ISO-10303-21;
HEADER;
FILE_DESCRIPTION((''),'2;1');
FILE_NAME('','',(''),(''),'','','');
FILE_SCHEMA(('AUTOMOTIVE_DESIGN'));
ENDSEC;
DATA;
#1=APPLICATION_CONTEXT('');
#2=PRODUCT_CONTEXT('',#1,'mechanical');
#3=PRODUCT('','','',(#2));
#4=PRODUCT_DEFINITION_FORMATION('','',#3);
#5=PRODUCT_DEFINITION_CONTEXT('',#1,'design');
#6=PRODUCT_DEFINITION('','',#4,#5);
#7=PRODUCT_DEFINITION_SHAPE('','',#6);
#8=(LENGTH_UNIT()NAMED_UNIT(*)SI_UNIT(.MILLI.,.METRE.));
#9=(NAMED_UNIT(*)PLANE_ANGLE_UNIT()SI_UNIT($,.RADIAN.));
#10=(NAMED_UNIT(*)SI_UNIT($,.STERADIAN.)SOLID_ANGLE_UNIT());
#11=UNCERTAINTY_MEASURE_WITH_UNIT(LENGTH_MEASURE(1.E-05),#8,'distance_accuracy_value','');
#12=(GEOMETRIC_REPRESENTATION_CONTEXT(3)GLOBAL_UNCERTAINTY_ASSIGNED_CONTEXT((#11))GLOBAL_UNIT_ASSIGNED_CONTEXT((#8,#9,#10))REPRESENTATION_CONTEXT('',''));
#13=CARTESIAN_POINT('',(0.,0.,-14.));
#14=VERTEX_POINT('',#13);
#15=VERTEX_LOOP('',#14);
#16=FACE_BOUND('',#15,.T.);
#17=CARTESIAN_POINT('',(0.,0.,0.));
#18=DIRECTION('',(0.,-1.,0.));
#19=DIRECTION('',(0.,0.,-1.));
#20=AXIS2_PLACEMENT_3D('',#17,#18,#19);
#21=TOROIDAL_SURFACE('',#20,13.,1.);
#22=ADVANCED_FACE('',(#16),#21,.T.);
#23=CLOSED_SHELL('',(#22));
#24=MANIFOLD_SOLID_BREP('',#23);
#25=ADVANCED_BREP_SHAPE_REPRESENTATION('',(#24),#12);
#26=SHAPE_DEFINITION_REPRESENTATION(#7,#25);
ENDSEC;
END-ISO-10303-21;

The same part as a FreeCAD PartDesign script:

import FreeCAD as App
import Part
import Sketcher
from FreeCAD import Vector

doc = App.newDocument("Part")
body = doc.addObject("PartDesign::Body", "Body")

sketch1 = body.newObject("Sketcher::SketchObject", "Sketch")
sketch1.AttachmentSupport = (doc.getObject("XY_Plane"), [""])
sketch1.MapMode = "FlatFace"
sketch1.addGeometry(Part.Circle(Vector(13, 0, 0), Vector(0, 0, 1), 1), False)
sketch1.addConstraint([
    Sketcher.Constraint("PointOnObject", 0, 3, -1),
    Sketcher.Constraint("Diameter", 0, 2.0),
    Sketcher.Constraint("DistanceX", -1, 1, 0, 3, 13.0),
])
revolution = body.newObject("PartDesign::Revolution", "Revolution")
revolution.Profile = sketch1
revolution.ReferenceAxis = (sketch1, ["V_Axis"])
revolution.Angle = 360

doc.recompute()
